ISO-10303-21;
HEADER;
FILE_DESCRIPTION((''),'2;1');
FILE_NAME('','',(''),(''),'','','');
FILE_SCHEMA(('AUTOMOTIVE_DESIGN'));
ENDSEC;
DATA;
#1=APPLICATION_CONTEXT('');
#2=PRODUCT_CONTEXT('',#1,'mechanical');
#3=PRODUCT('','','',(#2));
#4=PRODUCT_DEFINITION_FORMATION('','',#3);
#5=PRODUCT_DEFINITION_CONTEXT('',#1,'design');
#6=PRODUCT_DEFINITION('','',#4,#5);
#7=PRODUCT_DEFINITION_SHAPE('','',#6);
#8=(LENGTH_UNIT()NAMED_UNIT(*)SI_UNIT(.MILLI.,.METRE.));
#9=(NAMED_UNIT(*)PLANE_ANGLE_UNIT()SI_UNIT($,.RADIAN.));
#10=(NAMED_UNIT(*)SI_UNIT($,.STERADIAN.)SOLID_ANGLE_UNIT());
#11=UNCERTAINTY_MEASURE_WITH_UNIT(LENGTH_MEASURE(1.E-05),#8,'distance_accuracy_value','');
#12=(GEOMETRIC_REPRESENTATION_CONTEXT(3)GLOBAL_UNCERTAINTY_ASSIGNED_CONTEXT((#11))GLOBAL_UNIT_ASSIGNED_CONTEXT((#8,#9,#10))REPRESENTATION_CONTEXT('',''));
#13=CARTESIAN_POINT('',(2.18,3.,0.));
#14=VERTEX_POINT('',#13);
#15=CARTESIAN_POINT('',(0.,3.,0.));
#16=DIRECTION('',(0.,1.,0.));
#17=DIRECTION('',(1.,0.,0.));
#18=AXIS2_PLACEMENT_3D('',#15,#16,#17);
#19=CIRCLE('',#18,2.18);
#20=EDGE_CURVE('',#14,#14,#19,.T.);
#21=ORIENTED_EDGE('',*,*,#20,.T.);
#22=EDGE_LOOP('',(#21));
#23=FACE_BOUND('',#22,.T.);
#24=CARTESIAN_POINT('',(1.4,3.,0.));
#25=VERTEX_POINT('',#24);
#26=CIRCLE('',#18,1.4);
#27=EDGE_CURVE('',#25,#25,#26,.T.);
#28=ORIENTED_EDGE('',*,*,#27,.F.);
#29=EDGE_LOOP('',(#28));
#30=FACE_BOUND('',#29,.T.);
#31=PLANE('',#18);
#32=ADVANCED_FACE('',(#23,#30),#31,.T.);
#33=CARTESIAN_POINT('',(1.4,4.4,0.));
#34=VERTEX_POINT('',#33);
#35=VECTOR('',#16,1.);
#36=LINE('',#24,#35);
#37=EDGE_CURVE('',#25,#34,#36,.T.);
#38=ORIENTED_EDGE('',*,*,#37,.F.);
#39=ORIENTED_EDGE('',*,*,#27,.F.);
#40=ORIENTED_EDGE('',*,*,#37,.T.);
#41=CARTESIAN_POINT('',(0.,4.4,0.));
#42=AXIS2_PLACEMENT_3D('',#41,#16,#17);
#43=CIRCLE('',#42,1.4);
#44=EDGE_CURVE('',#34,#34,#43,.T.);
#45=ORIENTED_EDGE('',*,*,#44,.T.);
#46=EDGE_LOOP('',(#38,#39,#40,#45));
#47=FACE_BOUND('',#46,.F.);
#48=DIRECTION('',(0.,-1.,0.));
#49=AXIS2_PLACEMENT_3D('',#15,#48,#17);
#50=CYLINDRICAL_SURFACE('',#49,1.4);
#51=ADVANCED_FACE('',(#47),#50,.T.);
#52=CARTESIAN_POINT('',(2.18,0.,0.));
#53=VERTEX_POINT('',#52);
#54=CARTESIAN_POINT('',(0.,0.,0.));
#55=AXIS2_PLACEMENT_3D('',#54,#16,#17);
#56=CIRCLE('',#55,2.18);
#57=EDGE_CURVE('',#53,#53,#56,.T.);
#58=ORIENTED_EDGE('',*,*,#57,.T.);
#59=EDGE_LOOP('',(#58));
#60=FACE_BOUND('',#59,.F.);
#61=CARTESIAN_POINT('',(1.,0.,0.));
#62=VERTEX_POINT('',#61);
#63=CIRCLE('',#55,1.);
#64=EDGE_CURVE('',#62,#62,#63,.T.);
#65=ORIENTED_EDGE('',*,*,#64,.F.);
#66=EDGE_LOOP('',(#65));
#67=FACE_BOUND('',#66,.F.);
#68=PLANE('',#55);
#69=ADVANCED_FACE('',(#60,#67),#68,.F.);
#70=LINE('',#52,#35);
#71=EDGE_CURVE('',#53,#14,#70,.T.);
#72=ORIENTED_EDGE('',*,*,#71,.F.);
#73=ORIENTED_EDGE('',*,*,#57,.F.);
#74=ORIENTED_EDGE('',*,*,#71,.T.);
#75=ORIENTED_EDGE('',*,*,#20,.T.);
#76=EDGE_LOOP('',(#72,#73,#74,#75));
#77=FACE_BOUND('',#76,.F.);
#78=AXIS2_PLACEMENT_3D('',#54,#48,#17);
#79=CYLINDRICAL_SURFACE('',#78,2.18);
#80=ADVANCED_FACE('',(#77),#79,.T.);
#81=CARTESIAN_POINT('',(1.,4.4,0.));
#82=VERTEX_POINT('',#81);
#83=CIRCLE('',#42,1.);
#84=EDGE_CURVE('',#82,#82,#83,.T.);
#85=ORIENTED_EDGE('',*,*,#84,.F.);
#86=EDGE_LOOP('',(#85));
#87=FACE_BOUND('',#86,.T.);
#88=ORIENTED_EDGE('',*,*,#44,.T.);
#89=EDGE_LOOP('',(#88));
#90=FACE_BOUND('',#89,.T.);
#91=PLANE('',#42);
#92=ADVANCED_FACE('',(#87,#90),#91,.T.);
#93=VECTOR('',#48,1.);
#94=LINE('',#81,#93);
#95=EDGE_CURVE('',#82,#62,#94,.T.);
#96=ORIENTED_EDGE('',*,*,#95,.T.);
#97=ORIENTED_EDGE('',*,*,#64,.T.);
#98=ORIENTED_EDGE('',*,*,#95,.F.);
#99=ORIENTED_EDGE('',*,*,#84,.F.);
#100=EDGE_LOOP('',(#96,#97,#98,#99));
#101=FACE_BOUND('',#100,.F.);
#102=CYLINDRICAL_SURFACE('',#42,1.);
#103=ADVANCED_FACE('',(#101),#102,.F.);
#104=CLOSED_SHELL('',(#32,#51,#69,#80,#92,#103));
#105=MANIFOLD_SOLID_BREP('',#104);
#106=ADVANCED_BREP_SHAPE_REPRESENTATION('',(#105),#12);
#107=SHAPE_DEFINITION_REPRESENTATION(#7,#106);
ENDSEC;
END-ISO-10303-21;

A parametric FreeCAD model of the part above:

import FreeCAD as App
import Part
import Sketcher

V = App.Vector
Q = App.Units.Quantity

doc = App.newDocument("Part")
body = doc.addObject("PartDesign::Body", "Body")

# Sketch on XZ plane
sketch1 = body.newObject("Sketcher::SketchObject", "Sketch")
sketch1.AttachmentSupport = (doc.getObject("XZ_Plane"), [""])
sketch1.MapMode = "FlatFace"
sketch1.addGeometry(Part.Circle(V(0, 0, 0), V(0, 0, 1), 2.2), False)
sketch1.addConstraint([
    Sketcher.Constraint("Coincident", 0, 3, -1, 1),
    Sketcher.Constraint("Diameter", 0, Q("4.36 mm")),
])
pad1 = body.newObject("PartDesign::Pad", "Pad")
pad1.Profile = sketch1
pad1.Length = 3
pad1.Reversed = True

# Sketch on XZ plane
sketch2 = body.newObject("Sketcher::SketchObject", "Sketch001")
sketch2.AttachmentSupport = (doc.getObject("XZ_Plane"), [""])
sketch2.MapMode = "FlatFace"
sketch2.AttachmentOffset = App.Placement(V(0, 0, -3), App.Rotation())
sketch2.addGeometry(Part.Circle(V(0, 0, 0), V(0, 0, 1), 1.4), False)
sketch2.addConstraint([
    Sketcher.Constraint("Coincident", 0, 3, -1, 1),
    Sketcher.Constraint("Diameter", 0, Q("2.8 mm")),
])
pad2 = body.newObject("PartDesign::Pad", "Pad001")
pad2.Profile = sketch2
pad2.Length = 1.4
pad2.Reversed = True

# Sketch on XZ plane
sketch3 = body.newObject("Sketcher::SketchObject", "Sketch002")
sketch3.AttachmentSupport = (doc.getObject("XZ_Plane"), [""])
sketch3.MapMode = "FlatFace"
sketch3.AttachmentOffset = App.Placement(V(0, 0, -4.4), App.Rotation())
sketch3.addGeometry(Part.Circle(V(0, 0, 0), V(0, 0, 1), 1), False)
sketch3.addConstraint([
    Sketcher.Constraint("Coincident", 0, 3, -1, 1),
    Sketcher.Constraint("Diameter", 0, Q("2 mm")),
])
pocket1 = body.newObject("PartDesign::Pocket", "Pocket")
pocket1.Profile = sketch3
pocket1.Length = 10
pocket1.Reversed = True

doc.recompute()
